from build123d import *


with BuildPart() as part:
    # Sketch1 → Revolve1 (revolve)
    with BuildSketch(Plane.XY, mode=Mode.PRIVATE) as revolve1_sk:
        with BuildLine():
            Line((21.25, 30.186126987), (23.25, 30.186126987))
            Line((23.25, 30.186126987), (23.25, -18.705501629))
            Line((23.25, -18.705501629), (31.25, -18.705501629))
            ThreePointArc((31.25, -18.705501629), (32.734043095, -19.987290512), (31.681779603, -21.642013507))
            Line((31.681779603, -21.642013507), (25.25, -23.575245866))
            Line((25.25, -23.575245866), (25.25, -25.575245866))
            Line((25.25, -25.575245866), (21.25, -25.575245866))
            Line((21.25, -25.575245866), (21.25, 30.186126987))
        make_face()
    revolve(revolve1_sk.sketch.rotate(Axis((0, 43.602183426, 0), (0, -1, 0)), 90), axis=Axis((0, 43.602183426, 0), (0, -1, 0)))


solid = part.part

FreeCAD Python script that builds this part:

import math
import FreeCAD as App
import Part
import Sketcher

doc = App.newDocument("Part")
body = doc.addObject("PartDesign::Body", "Body")

# Sketch on XY plane
sketch1 = body.newObject("Sketcher::SketchObject", "Sketch")
sketch1.AttachmentSupport = (doc.getObject("XY_Plane"), [""])
sketch1.MapMode = "FlatFace"
sketch1.addGeometry(Part.LineSegment(App.Vector(23.2, 30.2, 0), App.Vector(21.2, 30.2, 0)), False)
sketch1.addGeometry(Part.LineSegment(App.Vector(21.2, 30.2, 0), App.Vector(21.2, -25.6, 0)), False)
sketch1.addGeometry(Part.LineSegment(App.Vector(21.2, -25.6, 0), App.Vector(25.2, -25.6, 0)), False)
sketch1.addGeometry(Part.LineSegment(App.Vector(25.2, -25.6, 0), App.Vector(25.2, -23.6, 0)), False)
sketch1.addGeometry(Part.LineSegment(App.Vector(25.2, -23.6, 0), App.Vector(31.7, -21.6, 0)), False)
sketch1.addGeometry(Part.ArcOfCircle(Part.Circle(App.Vector(31.2, -20.2, 0), App.Vector(0, 0, 1), 1.5), math.radians(-73), math.radians(90)), False)
sketch1.addGeometry(Part.LineSegment(App.Vector(31.2, -18.7, 0), App.Vector(23.2, -18.7, 0)), False)
sketch1.addGeometry(Part.LineSegment(App.Vector(23.2, -18.7, 0), App.Vector(23.2, 30.2, 0)), False)
sketch1.addConstraint(Sketcher.Constraint("Coincident", 0, 2, 1, 1))
sketch1.addConstraint(Sketcher.Constraint("Coincident", 1, 2, 2, 1))
sketch1.addConstraint(Sketcher.Constraint("Coincident", 2, 2, 3, 1))
sketch1.addConstraint(Sketcher.Constraint("Coincident", 3, 2, 4, 1))
sketch1.addConstraint(Sketcher.Constraint("Tangent", 4, 2, 5, 1))
sketch1.addConstraint(Sketcher.Constraint("Tangent", 5, 2, 6, 1))
sketch1.addConstraint(Sketcher.Constraint("Coincident", 6, 2, 7, 1))
sketch1.addConstraint(Sketcher.Constraint("Coincident", 7, 2, 0, 1))
sketch1.addConstraint(Sketcher.Constraint("Horizontal", 0))
sketch1.addConstraint(Sketcher.Constraint("Vertical", 1))
sketch1.addConstraint(Sketcher.Constraint("Horizontal", 2))
sketch1.addConstraint(Sketcher.Constraint("Vertical", 3))
sketch1.addConstraint(Sketcher.Constraint("Horizontal", 6))
sketch1.addConstraint(Sketcher.Constraint("Vertical", 7))
sketch1.addConstraint(Sketcher.Constraint("Equal", 0, 3))
sketch1.addConstraint(Sketcher.Constraint("Radius", 5, 1.5))
sketch1.addConstraint(Sketcher.Constraint("DistanceX", 0, 2, 0, 1, 2.0))
sketch1.addConstraint(Sketcher.Constraint("DistanceX", 2, 1, 2, 2, 4.0))
sketch1.addConstraint(Sketcher.Constraint("DistanceX", 6, 2, 6, 1, 8.0))
sketch1.addConstraint(Sketcher.Constraint("DistanceX", -1, 1, 5, 3, 31.25))
sketch1.addConstraint(Sketcher.Constraint("DistanceY", 7, 1, 7, 2, 48.891629))
sketch1.addConstraint(Sketcher.Constraint("DistanceY", 5, 3, -1, 1, 20.205502))
sketch1.addConstraint(Sketcher.Constraint("Distance", 4, 6.716039))
revolution = body.newObject("PartDesign::Revolution", "Revolution")
revolution.Profile = sketch1
revolution.ReferenceAxis = (sketch1, ["V_Axis"])
revolution.Angle = 360

doc.recompute()
